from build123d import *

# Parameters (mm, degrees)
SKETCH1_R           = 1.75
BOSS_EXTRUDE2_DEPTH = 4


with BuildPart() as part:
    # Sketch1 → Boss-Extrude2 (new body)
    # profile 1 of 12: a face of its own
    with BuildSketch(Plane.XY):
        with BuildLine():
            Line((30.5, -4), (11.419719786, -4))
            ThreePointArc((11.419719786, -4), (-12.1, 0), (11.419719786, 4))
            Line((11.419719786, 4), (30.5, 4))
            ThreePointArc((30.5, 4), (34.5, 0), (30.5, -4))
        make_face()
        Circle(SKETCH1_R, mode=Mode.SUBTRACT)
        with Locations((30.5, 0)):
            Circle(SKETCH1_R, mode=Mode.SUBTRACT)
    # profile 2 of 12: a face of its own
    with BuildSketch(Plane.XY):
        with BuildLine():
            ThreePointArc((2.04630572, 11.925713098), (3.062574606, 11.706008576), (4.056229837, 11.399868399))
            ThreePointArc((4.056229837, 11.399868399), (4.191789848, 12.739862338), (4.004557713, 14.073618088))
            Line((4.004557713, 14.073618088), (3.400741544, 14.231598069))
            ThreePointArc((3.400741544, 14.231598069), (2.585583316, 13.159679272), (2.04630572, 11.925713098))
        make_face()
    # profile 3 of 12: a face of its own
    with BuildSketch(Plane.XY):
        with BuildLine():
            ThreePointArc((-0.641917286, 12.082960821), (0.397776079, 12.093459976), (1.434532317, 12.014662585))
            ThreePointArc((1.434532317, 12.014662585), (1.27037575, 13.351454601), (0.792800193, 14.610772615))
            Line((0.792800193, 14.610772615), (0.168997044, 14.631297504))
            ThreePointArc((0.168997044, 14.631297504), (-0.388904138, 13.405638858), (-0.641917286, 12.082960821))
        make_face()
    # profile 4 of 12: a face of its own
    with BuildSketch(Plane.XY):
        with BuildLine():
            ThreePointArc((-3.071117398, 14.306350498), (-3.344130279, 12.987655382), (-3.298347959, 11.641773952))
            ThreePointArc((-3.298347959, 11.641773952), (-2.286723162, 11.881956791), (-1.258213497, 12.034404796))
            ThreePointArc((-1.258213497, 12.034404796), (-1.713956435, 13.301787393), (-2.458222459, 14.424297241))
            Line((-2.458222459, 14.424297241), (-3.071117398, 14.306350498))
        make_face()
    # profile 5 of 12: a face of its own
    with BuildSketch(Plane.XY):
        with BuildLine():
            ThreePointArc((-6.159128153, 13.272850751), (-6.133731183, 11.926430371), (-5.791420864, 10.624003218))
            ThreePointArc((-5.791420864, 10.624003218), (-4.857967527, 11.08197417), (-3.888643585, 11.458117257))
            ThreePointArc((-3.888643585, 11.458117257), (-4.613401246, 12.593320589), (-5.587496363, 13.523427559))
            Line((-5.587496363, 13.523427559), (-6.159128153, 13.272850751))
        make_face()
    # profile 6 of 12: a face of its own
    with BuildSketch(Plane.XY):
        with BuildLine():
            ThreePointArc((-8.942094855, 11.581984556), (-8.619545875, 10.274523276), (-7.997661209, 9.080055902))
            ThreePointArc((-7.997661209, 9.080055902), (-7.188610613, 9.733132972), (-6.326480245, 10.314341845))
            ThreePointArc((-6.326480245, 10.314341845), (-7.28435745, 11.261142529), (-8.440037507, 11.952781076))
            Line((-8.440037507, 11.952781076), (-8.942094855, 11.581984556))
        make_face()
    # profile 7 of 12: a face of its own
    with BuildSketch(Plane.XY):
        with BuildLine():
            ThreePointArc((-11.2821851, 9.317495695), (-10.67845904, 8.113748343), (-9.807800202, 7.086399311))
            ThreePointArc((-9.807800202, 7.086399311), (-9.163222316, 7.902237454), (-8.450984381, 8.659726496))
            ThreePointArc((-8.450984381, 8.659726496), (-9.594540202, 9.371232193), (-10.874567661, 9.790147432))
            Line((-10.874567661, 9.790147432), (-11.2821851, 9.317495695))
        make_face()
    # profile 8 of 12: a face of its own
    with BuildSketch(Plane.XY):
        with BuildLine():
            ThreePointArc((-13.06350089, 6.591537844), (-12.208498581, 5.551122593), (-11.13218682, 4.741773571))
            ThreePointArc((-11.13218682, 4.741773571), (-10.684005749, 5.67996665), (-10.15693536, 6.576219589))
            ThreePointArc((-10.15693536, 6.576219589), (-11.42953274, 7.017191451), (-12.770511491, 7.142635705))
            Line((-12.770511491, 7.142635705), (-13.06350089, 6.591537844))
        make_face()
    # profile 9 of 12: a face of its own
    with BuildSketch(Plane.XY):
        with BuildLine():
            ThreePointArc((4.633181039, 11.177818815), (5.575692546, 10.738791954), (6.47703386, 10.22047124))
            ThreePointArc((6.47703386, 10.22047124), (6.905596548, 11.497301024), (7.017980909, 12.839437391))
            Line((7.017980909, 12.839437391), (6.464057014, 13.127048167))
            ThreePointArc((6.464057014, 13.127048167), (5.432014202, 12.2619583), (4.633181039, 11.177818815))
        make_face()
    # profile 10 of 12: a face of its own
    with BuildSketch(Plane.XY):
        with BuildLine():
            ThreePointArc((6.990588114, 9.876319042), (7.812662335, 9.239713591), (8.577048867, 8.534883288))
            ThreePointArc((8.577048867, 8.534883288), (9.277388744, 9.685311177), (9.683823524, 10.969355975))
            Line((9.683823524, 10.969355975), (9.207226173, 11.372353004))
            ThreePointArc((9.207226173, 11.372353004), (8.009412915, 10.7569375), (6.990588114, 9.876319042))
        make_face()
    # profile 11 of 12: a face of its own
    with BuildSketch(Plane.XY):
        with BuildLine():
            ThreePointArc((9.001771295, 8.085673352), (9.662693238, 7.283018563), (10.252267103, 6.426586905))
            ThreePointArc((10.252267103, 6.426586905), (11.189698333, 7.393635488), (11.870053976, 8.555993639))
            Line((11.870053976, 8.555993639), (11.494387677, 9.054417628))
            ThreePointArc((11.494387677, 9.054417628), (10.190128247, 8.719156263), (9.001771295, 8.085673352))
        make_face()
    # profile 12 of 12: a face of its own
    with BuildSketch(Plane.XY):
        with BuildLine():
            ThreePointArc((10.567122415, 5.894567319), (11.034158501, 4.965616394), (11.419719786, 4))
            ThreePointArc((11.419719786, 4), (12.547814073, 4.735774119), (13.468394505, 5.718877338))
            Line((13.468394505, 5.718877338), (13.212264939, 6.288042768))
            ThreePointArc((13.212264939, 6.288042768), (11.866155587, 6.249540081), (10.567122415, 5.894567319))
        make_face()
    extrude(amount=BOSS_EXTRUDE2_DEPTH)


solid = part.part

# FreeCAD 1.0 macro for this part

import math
import FreeCAD as App
import Part
import Sketcher

V = App.Vector
Q = App.Units.Quantity

doc = App.newDocument("Part")
body = doc.addObject("PartDesign::Body", "Body")

# Sketch on XY plane
sketch1 = body.newObject("Sketcher::SketchObject", "Sketch")
sketch1.AttachmentSupport = (doc.getObject("XY_Plane"), [""])
sketch1.MapMode = "FlatFace"
sketch1.addGeometry(Part.LineSegment(V(11.4, -4, 0), V(30.5, -4, 0)), False)
sketch1.addGeometry(Part.ArcOfCircle(Part.Circle(V(30.5, 0, 0), V(0, 0, 1), 4), math.radians(-90), math.radians(90)), False)
sketch1.addGeometry(Part.LineSegment(V(30.5, 4, 0), V(11.4, 4, 0)), False)
sketch1.addGeometry(Part.ArcOfCircle(Part.Circle(V(8.9, 9, 0), V(0, 0, 1), 5.6), math.radians(-64), math.radians(-36)), False)
sketch1.addGeometry(Part.LineSegment(V(13.5, 5.7, 0), V(13.2, 6.3, 0)), False)
sketch1.addGeometry(Part.ArcOfCircle(Part.Circle(V(12.7, 0.6, 0), V(0, 0, 1), 5.7), math.radians(85), math.radians(112)), False)
sketch1.addGeometry(Part.ArcOfCircle(Part.Circle(V(0, 0, 0), V(0, 0, 1), 12.1), math.radians(29.15), math.radians(32.08)), False)
sketch1.addGeometry(Part.ArcOfCircle(Part.Circle(V(6.7, 10.8, 0), V(0, 0, 1), 5.6), math.radians(-51), math.radians(-23)), False)
sketch1.addGeometry(Part.LineSegment(V(11.9, 8.6, 0), V(11.5, 9.1, 0)), False)
sketch1.addGeometry(Part.ArcOfCircle(Part.Circle(V(12.2, 3.4, 0), V(0, 0, 1), 5.7), math.radians(98), math.radians(125)), False)
sketch1.addGeometry(Part.ArcOfCircle(Part.Circle(V(0, 0, 0), V(0, 0, 1), 12.1), math.radians(41.93), math.radians(44.86)), False)
sketch1.addGeometry(Part.ArcOfCircle(Part.Circle(V(4.2, 12, 0), V(0, 0, 1), 5.6), math.radians(-38), math.radians(-11)), False)
sketch1.addGeometry(Part.LineSegment(V(9.7, 11, 0), V(9.2, 11.4, 0)), False)
sketch1.addGeometry(Part.ArcOfCircle(Part.Circle(V(11.2, 6.1, 0), V(0, 0, 1), 5.7), math.radians(110), math.radians(138)), False)
sketch1.addGeometry(Part.ArcOfCircle(Part.Circle(V(0, 0, 0), V(0, 0, 1), 12.1), math.radians(54.71), math.radians(57.64)), False)
sketch1.addGeometry(Part.ArcOfCircle(Part.Circle(V(1.4, 12.6, 0), V(0, 0, 1), 5.6), math.radians(-25), math.radians(2)), False)
sketch1.addGeometry(Part.LineSegment(V(7, 12.8, 0), V(6.5, 13.1, 0)), False)
sketch1.addGeometry(Part.ArcOfCircle(Part.Circle(V(9.6, 8.4, 0), V(0, 0, 1), 5.7), math.radians(123), math.radians(150)), False)
sketch1.addGeometry(Part.ArcOfCircle(Part.Circle(V(0, 0, 0), V(0, 0, 1), 12.1), math.radians(67.49), math.radians(70.41)), False)
sketch1.addGeometry(Part.ArcOfCircle(Part.Circle(V(-1.4, 12.6, 0), V(0, 0, 1), 5.6), math.radians(-13), math.radians(15)), False)
sketch1.addGeometry(Part.LineSegment(V(4, 14.1, 0), V(3.4, 14.2, 0)), False)
sketch1.addGeometry(Part.ArcOfCircle(Part.Circle(V(7.5, 10.3, 0), V(0, 0, 1), 5.7), math.radians(136), math.radians(163)), False)
sketch1.addGeometry(Part.ArcOfCircle(Part.Circle(V(0, 0, 0), V(0, 0, 1), 12.1), math.radians(80.26), math.radians(83.19)), False)
sketch1.addGeometry(Part.ArcOfCircle(Part.Circle(V(-4.2, 12, 0), V(0, 0, 1), 5.6), math.radians(0), math.radians(28)), False)
sketch1.addGeometry(Part.LineSegment(V(0.8, 14.6, 0), V(0.2, 14.6, 0)), False)
sketch1.addGeometry(Part.ArcOfCircle(Part.Circle(V(5, 11.7, 0), V(0, 0, 1), 5.7), math.radians(149), math.radians(176)), False)
sketch1.addGeometry(Part.ArcOfCircle(Part.Circle(V(0, 0, 0), V(0, 0, 1), 12.1), math.radians(93.04), math.radians(95.97)), False)
sketch1.addGeometry(Part.ArcOfCircle(Part.Circle(V(-6.7, 10.8, 0), V(0, 0, 1), 5.6), math.radians(13), math.radians(40)), False)
sketch1.addGeometry(Part.LineSegment(V(-2.5, 14.4, 0), V(-3.1, 14.3, 0)), False)
sketch1.addGeometry(Part.ArcOfCircle(Part.Circle(V(2.3, 12.5, 0), V(0, 0, 1), 5.7), math.radians(161), math.radians(189)), False)
sketch1.addGeometry(Part.ArcOfCircle(Part.Circle(V(0, 0, 0), V(0, 0, 1), 12.1), math.radians(105.82), math.radians(108.75)), False)
sketch1.addGeometry(Part.ArcOfCircle(Part.Circle(V(-9, 9, 0), V(0, 0, 1), 5.6), math.radians(26), math.radians(53)), False)
sketch1.addGeometry(Part.LineSegment(V(-5.6, 13.5, 0), V(-6.2, 13.3, 0)), False)
sketch1.addGeometry(Part.ArcOfCircle(Part.Circle(V(-0.5, 12.7, 0), V(0, 0, 1), 5.7), math.radians(174), math.radians(202)), False)
sketch1.addGeometry(Part.ArcOfCircle(Part.Circle(V(0, 0, 0), V(0, 0, 1), 12.1), math.radians(118.6), math.radians(121.52)), False)
sketch1.addGeometry(Part.ArcOfCircle(Part.Circle(V(-10.7, 6.8, 0), V(0, 0, 1), 5.6), math.radians(38), math.radians(66)), False)
sketch1.addGeometry(Part.LineSegment(V(-8.4, 12, 0), V(-8.9, 11.6, 0)), False)
sketch1.addGeometry(Part.ArcOfCircle(Part.Circle(V(-3.3, 12.3, 0), V(0, 0, 1), 5.7), math.radians(-173), math.radians(-146)), False)
sketch1.addGeometry(Part.ArcOfCircle(Part.Circle(V(0, 0, 0), V(0, 0, 1), 12.1), math.radians(131.37), math.radians(134.3)), False)
sketch1.addGeometry(Part.ArcOfCircle(Part.Circle(V(-12, 4.3, 0), V(0, 0, 1), 5.6), math.radians(51), math.radians(79)), False)
sketch1.addGeometry(Part.LineSegment(V(-10.9, 9.8, 0), V(-11.3, 9.3, 0)), False)
sketch1.addGeometry(Part.ArcOfCircle(Part.Circle(V(-5.9, 11.2, 0), V(0, 0, 1), 5.7), math.radians(-160), math.radians(-133)), False)
sketch1.addGeometry(Part.ArcOfCircle(Part.Circle(V(0, 0, 0), V(0, 0, 1), 12.1), math.radians(144.15), math.radians(147.08)), False)
sketch1.addGeometry(Part.ArcOfCircle(Part.Circle(V(-12.6, 1.5, 0), V(0, 0, 1), 5.6), math.radians(64), math.radians(92)), False)
sketch1.addGeometry(Part.LineSegment(V(-12.8, 7.1, 0), V(-13.1, 6.6, 0)), False)
sketch1.addGeometry(Part.ArcOfCircle(Part.Circle(V(-8.3, 9.6, 0), V(0, 0, 1), 5.7), math.radians(-147), math.radians(-120)), False)
sketch1.addGeometry(Part.ArcOfCircle(Part.Circle(V(0, 0, 0), V(0, 0, 1), 12.1), math.radians(157), math.radians(341)), False)
sketch1.addGeometry(Part.Circle(V(30.5, 0, 0), V(0, 0, 1), 1.8), False)
sketch1.addGeometry(Part.Circle(V(0, 0, 0), V(0, 0, 1), 1.8), False)
sketch1.addConstraint(Sketcher.Constraint("Tangent", 0, 2, 1, 1))
sketch1.addConstraint(Sketcher.Constraint("Tangent", 1, 2, 2, 1))
sketch1.addConstraint(Sketcher.Constraint("Coincident", 2, 2, 3, 1))
sketch1.addConstraint(Sketcher.Constraint("Coincident", 3, 2, 4, 1))
sketch1.addConstraint(Sketcher.Constraint("Coincident", 4, 2, 5, 1))
sketch1.addConstraint(Sketcher.Constraint("Coincident", 5, 2, 6, 1))
sketch1.addConstraint(Sketcher.Constraint("Coincident", 6, 2, 7, 1))
sketch1.addConstraint(Sketcher.Constraint("Coincident", 7, 2, 8, 1))
sketch1.addConstraint(Sketcher.Constraint("Coincident", 8, 2, 9, 1))
sketch1.addConstraint(Sketcher.Constraint("Coincident", 9, 2, 10, 1))
sketch1.addConstraint(Sketcher.Constraint("Coincident", 10, 2, 11, 1))
sketch1.addConstraint(Sketcher.Constraint("Coincident", 11, 2, 12, 1))
sketch1.addConstraint(Sketcher.Constraint("Coincident", 12, 2, 13, 1))
sketch1.addConstraint(Sketcher.Constraint("Coincident", 13, 2, 14, 1))
sketch1.addConstraint(Sketcher.Constraint("Coincident", 14, 2, 15, 1))
sketch1.addConstraint(Sketcher.Constraint("Coincident", 15, 2, 16, 1))
sketch1.addConstraint(Sketcher.Constraint("Coincident", 16, 2, 17, 1))
sketch1.addConstraint(Sketcher.Constraint("Coincident", 17, 2, 18, 1))
sketch1.addConstraint(Sketcher.Constraint("Coincident", 18, 2, 19, 1))
sketch1.addConstraint(Sketcher.Constraint("Coincident", 19, 2, 20, 1))
sketch1.addConstraint(Sketcher.Constraint("Coincident", 20, 2, 21, 1))
sketch1.addConstraint(Sketcher.Constraint("Coincident", 21, 2, 22, 1))
sketch1.addConstraint(Sketcher.Constraint("Coincident", 22, 2, 23, 1))
sketch1.addConstraint(Sketcher.Constraint("Coincident", 23, 2, 24, 1))
sketch1.addConstraint(Sketcher.Constraint("Coincident", 24, 2, 25, 1))
sketch1.addConstraint(Sketcher.Constraint("Coincident", 25, 2, 26, 1))
sketch1.addConstraint(Sketcher.Constraint("Coincident", 26, 2, 27, 1))
sketch1.addConstraint(Sketcher.Constraint("Coincident", 27, 2, 28, 1))
sketch1.addConstraint(Sketcher.Constraint("Coincident", 28, 2, 29, 1))
sketch1.addConstraint(Sketcher.Constraint("Coincident", 29, 2, 30, 1))
sketch1.addConstraint(Sketcher.Constraint("Coincident", 30, 2, 31, 1))
sketch1.addConstraint(Sketcher.Constraint("Coincident", 31, 2, 32, 1))
sketch1.addConstraint(Sketcher.Constraint("Coincident", 32, 2, 33, 1))
sketch1.addConstraint(Sketcher.Constraint("Coincident", 33, 2, 34, 1))
sketch1.addConstraint(Sketcher.Constraint("Coincident", 34, 2, 35, 1))
sketch1.addConstraint(Sketcher.Constraint("Coincident", 35, 2, 36, 1))
sketch1.addConstraint(Sketcher.Constraint("Coincident", 36, 2, 37, 1))
sketch1.addConstraint(Sketcher.Constraint("Coincident", 37, 2, 38, 1))
sketch1.addConstraint(Sketcher.Constraint("Coincident", 38, 2, 39, 1))
sketch1.addConstraint(Sketcher.Constraint("Coincident", 39, 2, 40, 1))
sketch1.addConstraint(Sketcher.Constraint("Coincident", 40, 2, 41, 1))
sketch1.addConstraint(Sketcher.Constraint("Coincident", 41, 2, 42, 1))
sketch1.addConstraint(Sketcher.Constraint("Coincident", 42, 2, 43, 1))
sketch1.addConstraint(Sketcher.Constraint("Coincident", 43, 2, 44, 1))
sketch1.addConstraint(Sketcher.Constraint("Coincident", 44, 2, 45, 1))
sketch1.addConstraint(Sketcher.Constraint("Coincident", 45, 2, 46, 1))
sketch1.addConstraint(Sketcher.Constraint("Coincident", 46, 2, 0, 1))
sketch1.addConstraint(Sketcher.Constraint("Horizontal", 0))
sketch1.addConstraint(Sketcher.Constraint("Horizontal", 2))
sketch1.addConstraint(Sketcher.Constraint("Coincident", 6, 3, -1, 1))
sketch1.addConstraint(Sketcher.Constraint("Coincident", 10, 3, -1, 1))
sketch1.addConstraint(Sketcher.Constraint("Coincident", 14, 3, -1, 1))
sketch1.addConstraint(Sketcher.Constraint("Coincident", 18, 3, -1, 1))
sketch1.addConstraint(Sketcher.Constraint("Coincident", 22, 3, -1, 1))
sketch1.addConstraint(Sketcher.Constraint("Coincident", 26, 3, -1, 1))
sketch1.addConstraint(Sketcher.Constraint("Coincident", 30, 3, -1, 1))
sketch1.addConstraint(Sketcher.Constraint("Coincident", 34, 3, -1, 1))
sketch1.addConstraint(Sketcher.Constraint("Coincident", 38, 3, -1, 1))
sketch1.addConstraint(Sketcher.Constraint("Coincident", 42, 3, -1, 1))
sketch1.addConstraint(Sketcher.Constraint("Coincident", 46, 3, -1, 1))
sketch1.addConstraint(Sketcher.Constraint("Coincident", 48, 3, -1, 1))
sketch1.addConstraint(Sketcher.Constraint("Coincident", 47, 3, 1, 3))
sketch1.addConstraint(Sketcher.Constraint("Equal", 3, 7))
sketch1.addConstraint(Sketcher.Constraint("Equal", 5, 9))
sketch1.addConstraint(Sketcher.Constraint("Equal", 6, 10))
sketch1.addConstraint(Sketcher.Constraint("Equal", 7, 11))
sketch1.addConstraint(Sketcher.Constraint("Equal", 9, 13))
sketch1.addConstraint(Sketcher.Constraint("Equal", 10, 14))
sketch1.addConstraint(Sketcher.Constraint("Equal", 11, 15))
sketch1.addConstraint(Sketcher.Constraint("Equal", 13, 17))
sketch1.addConstraint(Sketcher.Constraint("Equal", 14, 18))
sketch1.addConstraint(Sketcher.Constraint("Equal", 15, 19))
sketch1.addConstraint(Sketcher.Constraint("Equal", 17, 21))
sketch1.addConstraint(Sketcher.Constraint("Equal", 18, 22))
sketch1.addConstraint(Sketcher.Constraint("Equal", 19, 23))
sketch1.addConstraint(Sketcher.Constraint("Equal", 21, 25))
sketch1.addConstraint(Sketcher.Constraint("Equal", 22, 26))
sketch1.addConstraint(Sketcher.Constraint("Equal", 23, 27))
sketch1.addConstraint(Sketcher.Constraint("Equal", 25, 29))
sketch1.addConstraint(Sketcher.Constraint("Equal", 26, 30))
sketch1.addConstraint(Sketcher.Constraint("Equal", 27, 31))
sketch1.addConstraint(Sketcher.Constraint("Equal", 29, 33))
sketch1.addConstraint(Sketcher.Constraint("Equal", 30, 34))
sketch1.addConstraint(Sketcher.Constraint("Equal", 31, 35))
sketch1.addConstraint(Sketcher.Constraint("Equal", 33, 37))
sketch1.addConstraint(Sketcher.Constraint("Equal", 34, 38))
sketch1.addConstraint(Sketcher.Constraint("Equal", 35, 39))
sketch1.addConstraint(Sketcher.Constraint("Equal", 37, 41))
sketch1.addConstraint(Sketcher.Constraint("Equal", 38, 42))
sketch1.addConstraint(Sketcher.Constraint("Equal", 39, 43))
sketch1.addConstraint(Sketcher.Constraint("Equal", 41, 45))
sketch1.addConstraint(Sketcher.Constraint("Equal", 42, 46))
sketch1.addConstraint(Sketcher.Constraint("Equal", 47, 48))
sketch1.addConstraint(Sketcher.Constraint("Symmetric", 2, 2, 46, 2, -1))
sketch1.addConstraint(Sketcher.Constraint("Equal", 4, 8))
sketch1.addConstraint(Sketcher.Constraint("Equal", 8, 12))
sketch1.addConstraint(Sketcher.Constraint("Equal", 12, 16))
sketch1.addConstraint(Sketcher.Constraint("Equal", 16, 20))
sketch1.addConstraint(Sketcher.Constraint("Equal", 20, 24))
sketch1.addConstraint(Sketcher.Constraint("Equal", 24, 28))
sketch1.addConstraint(Sketcher.Constraint("Equal", 28, 32))
sketch1.addConstraint(Sketcher.Constraint("Equal", 32, 36))
sketch1.addConstraint(Sketcher.Constraint("Equal", 36, 40))
sketch1.addConstraint(Sketcher.Constraint("Equal", 40, 44))
sketch1.addConstraint(Sketcher.Constraint("Radius", 1, Q("4 mm")))
sketch1.addConstraint(Sketcher.Constraint("Diameter", 47, Q("3.5 mm")))
sketch1.addConstraint(Sketcher.Constraint("Radius", 6, Q("12.1 mm")))
sketch1.addConstraint(Sketcher.Constraint("DistanceX", -1, 1, 1, 3, Q("30.5 mm")))
sketch1.addConstraint(Sketcher.Constraint("DistanceY", -1, 1, 3, 3, Q("9.039999 mm")))
sketch1.addConstraint(Sketcher.Constraint("Radius", 5, Q("5.66801 mm")))
sketch1.addConstraint(Sketcher.Constraint("DistanceX", 23, 3, -1, 1, Q("4.183999 mm")))
sketch1.addConstraint(Sketcher.Constraint("Radius", 3, Q("5.618543 mm")))
sketch1.addConstraint(Sketcher.Constraint("DistanceX", -1, 1, 15, 3, Q("1.403201 mm")))
sketch1.addConstraint(Sketcher.Constraint("DistanceY", -1, 1, 19, 3, Q("12.6313 mm")))
sketch1.addConstraint(Sketcher.Constraint("DistanceY", -1, 1, 35, 3, Q("6.820601 mm")))
sketch1.addConstraint(Sketcher.Constraint("DistanceX", 41, 3, -1, 1, Q("5.949699 mm")))
sketch1.addConstraint(Sketcher.Constraint("DistanceY", -1, 1, 45, 3, Q("9.644501 mm")))
sketch1.addConstraint(Sketcher.Constraint("DistanceY", -1, 1, 20, 2, Q("14.231598 mm")))
sketch1.addConstraint(Sketcher.Constraint("DistanceX", -1, 1, 23, 2, Q("0.7928 mm")))
sketch1.addConstraint(Sketcher.Constraint("DistanceX", 41, 2, -1, 1, Q("9.8078 mm")))
sketch1.addConstraint(Sketcher.Constraint("DistanceX", 44, 2, -1, 1, Q("13.063501 mm")))
sketch1.addConstraint(Sketcher.Constraint("Distance", 4, Q("0.624141 mm")))
sketch1.addConstraint(Sketcher.Constraint("DistanceX", -1, 1, 5, 3, Q("12.700118 mm")))
sketch1.addConstraint(Sketcher.Constraint("DistanceY", -1, 1, 5, 3, Q("0.643218 mm")))
sketch1.addConstraint(Sketcher.Constraint("DistanceX", -1, 1, 9, 3, Q("12.243361 mm")))
sketch1.addConstraint(Sketcher.Constraint("DistanceY", -1, 1, 9, 3, Q("3.43611 mm")))
sketch1.addConstraint(Sketcher.Constraint("DistanceX", -1, 1, 11, 3, Q("4.162611 mm")))
sketch1.addConstraint(Sketcher.Constraint("DistanceY", -1, 1, 13, 3, Q("6.058822 mm")))
sketch1.addConstraint(Sketcher.Constraint("DistanceY", -1, 1, 15, 3, Q("12.63382 mm")))
sketch1.addConstraint(Sketcher.Constraint("DistanceY", -1, 1, 23, 3, Q("12.003188 mm")))
sketch1.addConstraint(Sketcher.Constraint("DistanceX", -1, 1, 25, 3, Q("5.01224 mm")))
sketch1.addConstraint(Sketcher.Constraint("DistanceX", -1, 1, 29, 3, Q("2.303381 mm")))
sketch1.addConstraint(Sketcher.Constraint("DistanceY", -1, 1, 37, 3, Q("12.27623 mm")))
sketch1.addConstraint(Sketcher.Constraint("DistanceX", 39, 3, -1, 1, Q("11.969532 mm")))
sketch1.addConstraint(Sketcher.Constraint("DistanceX", 43, 3, -1, 1, Q("12.619562 mm")))
sketch1.addConstraint(Sketcher.Constraint("DistanceY", -1, 1, 43, 3, Q("1.526121 mm")))
sketch1.addConstraint(Sketcher.Constraint("DistanceX", -1, 1, 10, 2, Q("8.577049 mm")))
sketch1.addConstraint(Sketcher.Constraint("DistanceX", -1, 1, 13, 2, Q("6.990588 mm")))
sketch1.addConstraint(Sketcher.Constraint("DistanceX", -1, 1, 15, 2, Q("7.017981 mm")))
sketch1.addConstraint(Sketcher.Constraint("DistanceY", -1, 1, 16, 2, Q("13.127048 mm")))
sketch1.addConstraint(Sketcher.Constraint("DistanceX", -1, 1, 17, 2, Q("4.633181 mm")))
sketch1.addConstraint(Sketcher.Constraint("DistanceX", -1, 1, 18, 2, Q("4.05623 mm")))
sketch1.addConstraint(Sketcher.Constraint("DistanceY", -1, 1, 19, 2, Q("14.073618 mm")))
sketch1.addConstraint(Sketcher.Constraint("DistanceY", -1, 1, 28, 2, Q("14.30635 mm")))
sketch1.addConstraint(Sketcher.Constraint("DistanceX", 32, 2, -1, 1, Q("6.159128 mm")))
sketch1.addConstraint(Sketcher.Constraint("DistanceY", -1, 1, 32, 2, Q("13.272851 mm")))
sketch1.addConstraint(Sketcher.Constraint("DistanceX", 33, 2, -1, 1, Q("5.791421 mm")))
sketch1.addConstraint(Sketcher.Constraint("DistanceX", 34, 2, -1, 1, Q("6.32648 mm")))
sketch1.addConstraint(Sketcher.Constraint("DistanceY", -1, 1, 35, 2, Q("11.952781 mm")))
sketch1.addConstraint(Sketcher.Constraint("DistanceX", 37, 2, -1, 1, Q("7.997661 mm")))
sketch1.addConstraint(Sketcher.Constraint("DistanceX", 43, 2, -1, 1, Q("12.770511 mm")))
sketch1.addConstraint(Sketcher.Constraint("DistanceX", -1, 1, 7, 3, Q("6.715858 mm")))
sketch1.addConstraint(Sketcher.Constraint("DistanceY", -1, 1, 7, 3, Q("10.792573 mm")))
sketch1.addConstraint(Sketcher.Constraint("DistanceX", -1, 1, 21, 3, Q("7.472856 mm")))
sketch1.addConstraint(Sketcher.Constraint("DistanceY", -1, 1, 25, 3, Q("11.686924 mm")))
sketch1.addConstraint(Sketcher.Constraint("DistanceX", 27, 3, -1, 1, Q("6.735072 mm")))
sketch1.addConstraint(Sketcher.Constraint("DistanceY", -1, 1, 27, 3, Q("10.780593 mm")))
sketch1.addConstraint(Sketcher.Constraint("DistanceY", -1, 1, 29, 3, Q("12.506045 mm")))
sketch1.addConstraint(Sketcher.Constraint("DistanceX", 31, 3, -1, 1, Q("8.952577 mm")))
sketch1.addConstraint(Sketcher.Constraint("DistanceY", -1, 1, 31, 3, Q("9.024065 mm")))
sketch1.addConstraint(Sketcher.Constraint("DistanceY", -1, 1, 39, 3, Q("4.279332 mm")))
sketch1.addConstraint(Sketcher.Constraint("DistanceX", -1, 1, 3, 2, Q("13.468395 mm")))
sketch1.addConstraint(Sketcher.Constraint("DistanceX", -1, 1, 7, 2, Q("11.870054 mm")))
sketch1.addConstraint(Sketcher.Constraint("DistanceX", -1, 1, 11, 2, Q("9.683824 mm")))
sketch1.addConstraint(Sketcher.Constraint("DistanceX", 39, 2, -1, 1, Q("10.874568 mm")))
pad1 = body.newObject("PartDesign::Pad", "Pad")
pad1.Profile = sketch1
pad1.Length = 4

doc.recompute()
